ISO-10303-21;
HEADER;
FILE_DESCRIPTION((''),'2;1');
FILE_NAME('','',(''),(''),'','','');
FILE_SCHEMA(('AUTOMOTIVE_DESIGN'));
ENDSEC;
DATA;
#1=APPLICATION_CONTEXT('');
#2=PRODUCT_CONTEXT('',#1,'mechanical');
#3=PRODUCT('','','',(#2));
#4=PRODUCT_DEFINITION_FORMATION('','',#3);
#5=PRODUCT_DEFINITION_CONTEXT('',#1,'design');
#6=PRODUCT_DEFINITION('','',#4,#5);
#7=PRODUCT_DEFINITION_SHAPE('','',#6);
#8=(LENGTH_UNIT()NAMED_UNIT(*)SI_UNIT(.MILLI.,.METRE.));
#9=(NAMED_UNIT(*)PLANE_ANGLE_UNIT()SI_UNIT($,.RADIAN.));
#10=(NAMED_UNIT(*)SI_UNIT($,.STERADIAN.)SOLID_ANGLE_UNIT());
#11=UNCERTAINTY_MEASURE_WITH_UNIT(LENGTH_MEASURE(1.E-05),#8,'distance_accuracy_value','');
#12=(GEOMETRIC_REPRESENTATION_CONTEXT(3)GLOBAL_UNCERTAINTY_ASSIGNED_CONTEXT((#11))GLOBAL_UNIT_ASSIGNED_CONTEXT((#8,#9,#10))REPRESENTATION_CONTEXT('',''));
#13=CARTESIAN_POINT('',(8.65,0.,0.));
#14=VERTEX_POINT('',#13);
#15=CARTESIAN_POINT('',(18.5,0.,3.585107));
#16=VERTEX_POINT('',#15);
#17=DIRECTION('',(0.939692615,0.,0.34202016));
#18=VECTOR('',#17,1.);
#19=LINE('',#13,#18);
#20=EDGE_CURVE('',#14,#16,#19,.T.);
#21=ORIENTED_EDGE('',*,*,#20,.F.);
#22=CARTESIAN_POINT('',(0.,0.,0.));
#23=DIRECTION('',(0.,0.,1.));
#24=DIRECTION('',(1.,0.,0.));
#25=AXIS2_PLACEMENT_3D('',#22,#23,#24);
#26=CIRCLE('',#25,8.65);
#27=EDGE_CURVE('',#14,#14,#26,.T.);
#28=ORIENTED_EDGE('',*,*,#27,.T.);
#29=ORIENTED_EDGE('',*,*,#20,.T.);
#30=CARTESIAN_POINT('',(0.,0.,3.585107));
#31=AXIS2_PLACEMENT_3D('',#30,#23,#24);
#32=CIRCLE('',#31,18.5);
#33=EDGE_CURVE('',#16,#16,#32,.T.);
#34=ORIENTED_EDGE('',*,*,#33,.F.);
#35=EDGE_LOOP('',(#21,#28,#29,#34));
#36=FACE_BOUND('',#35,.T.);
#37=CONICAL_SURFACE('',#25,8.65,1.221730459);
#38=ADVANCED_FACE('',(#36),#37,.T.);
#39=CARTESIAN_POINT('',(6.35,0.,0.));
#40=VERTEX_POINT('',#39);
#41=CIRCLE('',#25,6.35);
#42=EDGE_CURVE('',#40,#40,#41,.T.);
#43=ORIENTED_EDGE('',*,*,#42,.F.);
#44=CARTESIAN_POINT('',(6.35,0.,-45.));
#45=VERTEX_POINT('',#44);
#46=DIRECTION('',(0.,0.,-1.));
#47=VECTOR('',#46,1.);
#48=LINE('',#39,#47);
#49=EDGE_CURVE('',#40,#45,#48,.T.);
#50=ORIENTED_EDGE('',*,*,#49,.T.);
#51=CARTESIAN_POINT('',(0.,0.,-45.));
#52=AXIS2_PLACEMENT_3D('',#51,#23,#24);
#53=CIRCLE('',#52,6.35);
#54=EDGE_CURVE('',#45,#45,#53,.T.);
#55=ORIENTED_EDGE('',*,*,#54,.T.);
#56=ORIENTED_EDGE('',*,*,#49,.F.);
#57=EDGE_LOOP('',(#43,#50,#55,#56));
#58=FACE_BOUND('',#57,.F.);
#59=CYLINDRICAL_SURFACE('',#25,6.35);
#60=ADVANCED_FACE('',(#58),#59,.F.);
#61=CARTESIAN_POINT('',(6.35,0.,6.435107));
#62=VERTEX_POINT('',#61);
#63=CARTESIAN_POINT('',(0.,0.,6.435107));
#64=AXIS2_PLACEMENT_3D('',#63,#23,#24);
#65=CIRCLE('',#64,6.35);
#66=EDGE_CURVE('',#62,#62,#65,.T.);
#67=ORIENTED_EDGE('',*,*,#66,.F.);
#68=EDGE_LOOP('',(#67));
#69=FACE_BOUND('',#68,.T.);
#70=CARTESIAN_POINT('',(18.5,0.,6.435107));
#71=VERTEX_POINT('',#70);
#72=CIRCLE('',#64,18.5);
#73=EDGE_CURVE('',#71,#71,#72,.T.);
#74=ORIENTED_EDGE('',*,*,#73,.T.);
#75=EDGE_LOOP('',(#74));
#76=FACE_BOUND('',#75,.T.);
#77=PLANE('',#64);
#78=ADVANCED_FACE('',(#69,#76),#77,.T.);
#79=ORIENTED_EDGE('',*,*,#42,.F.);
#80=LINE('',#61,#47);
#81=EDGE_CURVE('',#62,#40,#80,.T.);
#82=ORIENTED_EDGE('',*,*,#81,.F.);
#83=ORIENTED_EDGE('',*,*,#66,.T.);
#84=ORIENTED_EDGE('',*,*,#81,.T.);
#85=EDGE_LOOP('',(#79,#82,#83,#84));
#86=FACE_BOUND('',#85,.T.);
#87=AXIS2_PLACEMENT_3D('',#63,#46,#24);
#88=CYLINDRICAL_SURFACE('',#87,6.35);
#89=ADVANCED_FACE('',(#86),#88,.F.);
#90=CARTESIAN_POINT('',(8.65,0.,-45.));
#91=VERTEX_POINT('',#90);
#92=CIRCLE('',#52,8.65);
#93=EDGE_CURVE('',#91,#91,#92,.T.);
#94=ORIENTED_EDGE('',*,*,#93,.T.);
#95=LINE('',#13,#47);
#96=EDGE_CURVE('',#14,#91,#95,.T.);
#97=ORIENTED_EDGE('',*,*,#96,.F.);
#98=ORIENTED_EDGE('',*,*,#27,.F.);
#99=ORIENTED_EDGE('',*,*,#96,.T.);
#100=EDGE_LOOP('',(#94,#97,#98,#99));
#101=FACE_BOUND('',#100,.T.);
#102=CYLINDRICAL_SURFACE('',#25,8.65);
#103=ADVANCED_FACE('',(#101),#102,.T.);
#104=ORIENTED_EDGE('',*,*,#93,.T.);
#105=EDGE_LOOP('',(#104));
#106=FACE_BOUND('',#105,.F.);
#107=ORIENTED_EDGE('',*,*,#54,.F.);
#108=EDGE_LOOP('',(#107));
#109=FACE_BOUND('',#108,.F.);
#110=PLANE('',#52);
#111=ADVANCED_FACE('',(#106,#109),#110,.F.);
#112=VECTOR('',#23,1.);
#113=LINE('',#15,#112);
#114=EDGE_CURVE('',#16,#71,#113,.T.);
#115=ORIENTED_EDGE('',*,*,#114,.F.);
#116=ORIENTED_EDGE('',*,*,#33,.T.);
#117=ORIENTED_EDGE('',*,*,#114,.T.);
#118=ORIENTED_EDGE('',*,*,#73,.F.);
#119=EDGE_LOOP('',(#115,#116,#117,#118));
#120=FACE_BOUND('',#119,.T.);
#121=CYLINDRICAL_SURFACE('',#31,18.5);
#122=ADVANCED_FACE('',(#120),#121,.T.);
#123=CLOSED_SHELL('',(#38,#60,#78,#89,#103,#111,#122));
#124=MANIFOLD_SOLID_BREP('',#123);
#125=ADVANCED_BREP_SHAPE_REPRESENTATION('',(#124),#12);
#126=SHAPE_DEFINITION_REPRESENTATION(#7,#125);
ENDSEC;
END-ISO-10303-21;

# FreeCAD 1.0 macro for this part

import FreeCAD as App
import Part
import Sketcher
Q = App.Units.Quantity


def add_polygon(sketch, points):
    """Adds a closed chain of lines whose ends are joined by coincident constraints."""
    first, n = sketch.GeometryCount, len(points)
    for a, b in zip(points, points[1:] + points[:1]):
        sketch.addGeometry(Part.LineSegment(App.Vector(*a, 0), App.Vector(*b, 0)), False)
    for i in range(n):
        sketch.addConstraint(Sketcher.Constraint("Coincident", first + i, 2, first + (i + 1) % n, 1))

doc = App.newDocument("Part")
body = doc.addObject("PartDesign::Body", "Body")

# Sketch on XZ plane
sketch1 = body.newObject("Sketcher::SketchObject", "Sketch")
sketch1.AttachmentSupport = (doc.getObject("XZ_Plane"), [""])
sketch1.MapMode = "FlatFace"
add_polygon(sketch1, [(6.3, 6.4), (6.3, 0), (8.7, 0), (18.5, 3.6), (18.5, 6.4)])  # lines 0-4
sketch1.addConstraint(Sketcher.Constraint("Vertical", 0))
sketch1.addConstraint(Sketcher.Constraint("Horizontal", 1))
sketch1.addConstraint(Sketcher.Constraint("Vertical", 3))
sketch1.addConstraint(Sketcher.Constraint("Horizontal", 4))
sketch1.addConstraint(Sketcher.Constraint("PointOnObject", 0, 2, -1))
sketch1.addConstraint(Sketcher.Constraint("Angle", 2, Q("20.000001 deg")))
sketch1.addConstraint(Sketcher.Constraint("DistanceX", 1, 1, 1, 2, 2.3))
sketch1.addConstraint(Sketcher.Constraint("DistanceX", 4, 2, 4, 1, 12.15))
sketch1.addConstraint(Sketcher.Constraint("DistanceY", 3, 1, 3, 2, 2.85))
sketch1.addConstraint(Sketcher.Constraint("DistanceX", -1, 1, 2, 2, 18.5))
revolution = body.newObject("PartDesign::Revolution", "Revolution")
revolution.Profile = sketch1
revolution.ReferenceAxis = (sketch1, ["V_Axis"])
revolution.Angle = 360

# Sketch on XY plane
sketch2 = body.newObject("Sketcher::SketchObject", "Sketch001")
sketch2.AttachmentSupport = (doc.getObject("XY_Plane"), [""])
sketch2.MapMode = "FlatFace"
sketch2.addGeometry(Part.Circle(App.Vector(0, 0, 0), App.Vector(0, 0, 1), 9), False)
sketch2.addGeometry(Part.Circle(App.Vector(0, 0, 0), App.Vector(0, 0, 1), 6), False)
sketch2.addConstraint(Sketcher.Constraint("Coincident", 0, 3, -1, 1))
sketch2.addConstraint(Sketcher.Constraint("Coincident", 1, 3, -1, 1))
sketch2.addConstraint(Sketcher.Constraint("Diameter", 0, 17.3))
sketch2.addConstraint(Sketcher.Constraint("Diameter", 1, 12.7))
pad1 = body.newObject("PartDesign::Pad", "Pad")
pad1.Profile = sketch2
pad1.Length = 45
pad1.Reversed = True

doc.recompute()
